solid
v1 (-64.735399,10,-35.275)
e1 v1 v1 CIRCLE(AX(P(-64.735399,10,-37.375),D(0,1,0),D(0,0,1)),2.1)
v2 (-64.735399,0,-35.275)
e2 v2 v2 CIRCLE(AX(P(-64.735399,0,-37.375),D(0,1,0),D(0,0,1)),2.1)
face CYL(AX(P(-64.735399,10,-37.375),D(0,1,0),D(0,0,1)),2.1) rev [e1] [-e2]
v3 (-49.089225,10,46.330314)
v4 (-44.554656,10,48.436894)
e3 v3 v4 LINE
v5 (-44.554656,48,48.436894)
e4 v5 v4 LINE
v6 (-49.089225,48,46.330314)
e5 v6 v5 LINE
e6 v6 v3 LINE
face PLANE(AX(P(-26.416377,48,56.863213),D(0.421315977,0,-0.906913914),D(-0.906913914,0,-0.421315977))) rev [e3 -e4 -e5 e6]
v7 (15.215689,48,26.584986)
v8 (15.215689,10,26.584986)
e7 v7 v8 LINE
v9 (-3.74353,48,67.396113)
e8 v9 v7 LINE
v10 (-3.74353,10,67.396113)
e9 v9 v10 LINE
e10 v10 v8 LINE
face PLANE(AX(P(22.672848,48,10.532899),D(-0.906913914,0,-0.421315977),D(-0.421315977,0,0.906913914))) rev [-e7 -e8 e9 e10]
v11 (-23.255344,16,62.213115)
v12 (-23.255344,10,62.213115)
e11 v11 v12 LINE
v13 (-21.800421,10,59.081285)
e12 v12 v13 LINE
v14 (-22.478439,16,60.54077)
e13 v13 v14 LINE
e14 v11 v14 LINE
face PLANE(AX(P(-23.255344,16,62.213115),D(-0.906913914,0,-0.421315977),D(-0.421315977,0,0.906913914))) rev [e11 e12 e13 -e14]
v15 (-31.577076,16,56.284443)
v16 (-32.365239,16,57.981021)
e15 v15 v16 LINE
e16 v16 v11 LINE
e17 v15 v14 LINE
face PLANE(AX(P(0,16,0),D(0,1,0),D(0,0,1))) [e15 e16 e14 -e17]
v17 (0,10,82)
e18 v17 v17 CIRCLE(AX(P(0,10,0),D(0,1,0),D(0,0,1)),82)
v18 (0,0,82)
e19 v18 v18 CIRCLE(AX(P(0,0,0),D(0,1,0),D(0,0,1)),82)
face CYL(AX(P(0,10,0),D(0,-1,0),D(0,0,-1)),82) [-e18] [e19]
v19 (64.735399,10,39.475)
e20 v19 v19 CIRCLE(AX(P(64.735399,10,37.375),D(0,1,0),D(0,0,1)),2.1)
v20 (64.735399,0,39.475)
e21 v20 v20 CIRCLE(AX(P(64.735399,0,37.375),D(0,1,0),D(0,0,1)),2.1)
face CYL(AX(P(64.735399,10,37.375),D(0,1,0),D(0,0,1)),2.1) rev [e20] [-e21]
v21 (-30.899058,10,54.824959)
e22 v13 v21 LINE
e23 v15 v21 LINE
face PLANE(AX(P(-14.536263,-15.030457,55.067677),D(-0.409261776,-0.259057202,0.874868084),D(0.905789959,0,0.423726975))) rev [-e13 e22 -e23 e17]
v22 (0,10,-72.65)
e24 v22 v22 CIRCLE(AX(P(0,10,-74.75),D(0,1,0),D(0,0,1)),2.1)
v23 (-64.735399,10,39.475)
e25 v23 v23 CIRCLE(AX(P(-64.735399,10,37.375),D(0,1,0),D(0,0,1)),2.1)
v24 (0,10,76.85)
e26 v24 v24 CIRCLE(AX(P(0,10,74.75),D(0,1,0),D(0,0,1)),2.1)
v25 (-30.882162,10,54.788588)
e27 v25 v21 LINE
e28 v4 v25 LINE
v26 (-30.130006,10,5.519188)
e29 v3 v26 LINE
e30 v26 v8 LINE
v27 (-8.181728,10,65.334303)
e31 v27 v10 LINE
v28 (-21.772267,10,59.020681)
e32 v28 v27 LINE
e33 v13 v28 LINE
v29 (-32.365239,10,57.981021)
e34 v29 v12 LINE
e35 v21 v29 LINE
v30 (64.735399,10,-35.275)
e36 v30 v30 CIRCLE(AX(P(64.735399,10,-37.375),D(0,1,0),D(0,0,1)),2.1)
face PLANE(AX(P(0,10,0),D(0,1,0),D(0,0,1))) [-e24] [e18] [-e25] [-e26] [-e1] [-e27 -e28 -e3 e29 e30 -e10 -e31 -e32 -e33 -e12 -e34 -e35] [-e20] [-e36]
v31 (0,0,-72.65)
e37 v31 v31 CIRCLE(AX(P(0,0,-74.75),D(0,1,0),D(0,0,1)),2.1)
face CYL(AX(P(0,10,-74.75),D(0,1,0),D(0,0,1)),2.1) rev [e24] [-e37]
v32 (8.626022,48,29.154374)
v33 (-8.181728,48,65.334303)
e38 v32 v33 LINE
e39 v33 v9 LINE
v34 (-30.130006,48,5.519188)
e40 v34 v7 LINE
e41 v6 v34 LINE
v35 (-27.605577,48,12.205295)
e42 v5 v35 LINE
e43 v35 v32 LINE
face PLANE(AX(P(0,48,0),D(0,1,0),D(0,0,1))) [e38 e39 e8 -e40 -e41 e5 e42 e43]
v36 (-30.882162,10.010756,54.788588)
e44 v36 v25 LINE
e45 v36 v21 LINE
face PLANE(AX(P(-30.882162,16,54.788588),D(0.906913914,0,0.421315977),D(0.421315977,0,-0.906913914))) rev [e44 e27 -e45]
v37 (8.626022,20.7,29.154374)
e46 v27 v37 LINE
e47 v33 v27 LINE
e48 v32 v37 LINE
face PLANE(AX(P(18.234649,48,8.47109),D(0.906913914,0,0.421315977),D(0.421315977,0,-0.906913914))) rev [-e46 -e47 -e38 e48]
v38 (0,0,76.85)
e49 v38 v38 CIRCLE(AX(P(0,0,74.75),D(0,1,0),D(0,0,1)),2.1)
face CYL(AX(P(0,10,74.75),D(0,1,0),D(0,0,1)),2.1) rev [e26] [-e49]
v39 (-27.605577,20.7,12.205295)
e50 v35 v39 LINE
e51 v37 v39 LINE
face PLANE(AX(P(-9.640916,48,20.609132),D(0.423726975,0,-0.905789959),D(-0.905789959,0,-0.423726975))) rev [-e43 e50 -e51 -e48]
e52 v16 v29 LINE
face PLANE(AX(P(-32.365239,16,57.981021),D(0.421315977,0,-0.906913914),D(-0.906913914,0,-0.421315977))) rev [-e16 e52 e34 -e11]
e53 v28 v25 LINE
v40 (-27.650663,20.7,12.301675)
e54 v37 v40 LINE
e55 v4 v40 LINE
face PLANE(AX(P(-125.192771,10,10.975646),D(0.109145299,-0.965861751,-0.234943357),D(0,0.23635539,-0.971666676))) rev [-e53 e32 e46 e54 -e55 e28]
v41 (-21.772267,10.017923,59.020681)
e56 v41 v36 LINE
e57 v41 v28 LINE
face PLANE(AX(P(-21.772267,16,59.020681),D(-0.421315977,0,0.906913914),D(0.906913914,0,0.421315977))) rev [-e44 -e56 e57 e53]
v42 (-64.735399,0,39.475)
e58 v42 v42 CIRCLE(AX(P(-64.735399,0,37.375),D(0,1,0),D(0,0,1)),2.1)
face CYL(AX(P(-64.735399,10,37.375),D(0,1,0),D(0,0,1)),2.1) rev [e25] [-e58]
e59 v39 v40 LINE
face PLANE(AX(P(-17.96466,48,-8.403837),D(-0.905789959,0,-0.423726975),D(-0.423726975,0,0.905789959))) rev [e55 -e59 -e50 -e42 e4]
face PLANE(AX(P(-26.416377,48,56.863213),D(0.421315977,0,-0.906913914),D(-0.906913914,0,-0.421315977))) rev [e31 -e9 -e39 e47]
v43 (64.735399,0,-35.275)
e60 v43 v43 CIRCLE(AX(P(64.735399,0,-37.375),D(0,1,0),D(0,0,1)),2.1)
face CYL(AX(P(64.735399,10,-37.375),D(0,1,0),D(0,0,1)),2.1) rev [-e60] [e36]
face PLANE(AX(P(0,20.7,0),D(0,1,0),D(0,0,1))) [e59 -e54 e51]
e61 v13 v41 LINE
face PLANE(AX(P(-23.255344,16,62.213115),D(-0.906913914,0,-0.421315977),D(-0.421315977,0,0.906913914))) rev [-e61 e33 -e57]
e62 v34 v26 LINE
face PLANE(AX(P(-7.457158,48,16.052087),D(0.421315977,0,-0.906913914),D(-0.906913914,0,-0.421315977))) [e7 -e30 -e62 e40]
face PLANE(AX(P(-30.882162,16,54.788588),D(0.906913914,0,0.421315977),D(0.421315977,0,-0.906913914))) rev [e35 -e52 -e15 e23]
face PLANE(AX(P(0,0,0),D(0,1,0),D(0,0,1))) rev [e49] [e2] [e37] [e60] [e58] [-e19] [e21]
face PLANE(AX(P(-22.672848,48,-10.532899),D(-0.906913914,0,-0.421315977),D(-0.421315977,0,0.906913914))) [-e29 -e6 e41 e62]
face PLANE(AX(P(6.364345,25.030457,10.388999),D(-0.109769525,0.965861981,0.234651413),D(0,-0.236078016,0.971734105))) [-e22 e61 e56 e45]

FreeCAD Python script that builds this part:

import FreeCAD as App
import Part
import Sketcher
Q = App.Units.Quantity


def add_polygon(sketch, points):
    """Adds a closed chain of lines whose ends are joined by coincident constraints."""
    first, n = sketch.GeometryCount, len(points)
    for a, b in zip(points, points[1:] + points[:1]):
        sketch.addGeometry(Part.LineSegment(App.Vector(*a, 0), App.Vector(*b, 0)), False)
    for i in range(n):
        sketch.addConstraint(Sketcher.Constraint("Coincident", first + i, 2, first + (i + 1) % n, 1))

doc = App.newDocument("Part")
body = doc.addObject("PartDesign::Body", "Body")

# Sketch on XZ plane
sketch1 = doc.addObject("Sketcher::SketchObject", "Sketch")
body.addObject(sketch1)
sketch1.AttachmentSupport = (doc.XZ_Plane, [""])
sketch1.MapMode = "FlatFace"
sketch1.addGeometry(Part.Circle(App.Vector(0, 0, 0), App.Vector(0, 0, 1), 82), False)
sketch1.addConstraint([
    Sketcher.Constraint("Coincident", 0, 3, -1, 1),
    Sketcher.Constraint("Diameter", 0, Q("164 mm")),
])
pad1 = doc.addObject("PartDesign::Pad", "Pad")
body.addObject(pad1)
pad1.Profile = sketch1
pad1.Length = 10
pad1.Reversed = True

# Sketch on XZ plane
sketch2 = doc.addObject("Sketcher::SketchObject", "Sketch001")
body.addObject(sketch2)
sketch2.AttachmentSupport = (doc.XZ_Plane, [""])
sketch2.MapMode = "FlatFace"
sketch2.AttachmentOffset = App.Placement(App.Vector(0, 0, -10), App.Rotation())
sketch2.addGeometry(Part.Circle(App.Vector(0, -74.8, 0), App.Vector(0, 0, 1), 2.1), False)
sketch2.addConstraint([
    Sketcher.Constraint("PointOnObject", 0, 3, -2),
    Sketcher.Constraint("Diameter", 0, Q("4.2 mm")),
    Sketcher.Constraint("DistanceY", 0, 3, -1, 1, Q("74.75 mm")),
])
doc.recompute()
hole = doc.addObject("PartDesign::Hole", "Hole")
body.addObject(hole)
hole.Profile = sketch2
hole.ThreadType = "None"
hole.Diameter = 4.2
hole.DepthType = "ThroughAll"
hole.Reversed = True
doc.recompute()

polarpattern = doc.addObject("PartDesign::PolarPattern", "PolarPattern")
body.addObject(polarpattern)
polarpattern.Originals = [hole]
polarpattern.Axis = (doc.Y_Axis, [""])
polarpattern.Angle = 360
polarpattern.Occurrences = 6
body.Tip = polarpattern

# Sketch on XZ plane
sketch3 = doc.addObject("Sketcher::SketchObject", "Sketch002")
body.addObject(sketch3)
sketch3.AttachmentSupport = (doc.XZ_Plane, [""])
sketch3.MapMode = "FlatFace"
sketch3.AttachmentOffset = App.Placement(App.Vector(0, 0, -10), App.Rotation())
add_polygon(sketch3, [(-28, 12), (-45, 48), (-8, 65), (9, 29)])  # lines 0-3
sketch3.addConstraint([
    Sketcher.Constraint("Perpendicular", 1, 2),
    Sketcher.Constraint("Perpendicular", 0, 3),
    Sketcher.Constraint("Equal", 0, 3),
    Sketcher.Constraint("Distance", 0, Q("40 mm")),
    Sketcher.Constraint("DistanceX", 3, 2, 2, 2, Q("36.231598 mm")),
    Sketcher.Constraint("DistanceX", -1, 1, 2, 2, Q("8.626022 mm")),
    Sketcher.Constraint("DistanceY", 0, 2, 1, 2, Q("16.897409 mm")),
    Sketcher.Constraint("DistanceY", -1, 1, 0, 2, Q("48.436894 mm")),
])
pad2 = doc.addObject("PartDesign::Pad", "Pad001")
body.addObject(pad2)
pad2.Profile = sketch3
pad2.Length = 10.7
pad2.Reversed = True

# Sketch on an angled plane
sketch4 = doc.addObject("Sketcher::SketchObject", "Sketch003")
body.addObject(sketch4)
sketch4.Placement = App.Placement(App.Vector(18.234649, 0, 8.47109), App.Rotation(App.Vector(0.421315977, 0, -0.906913914), App.Vector(0, 1, 0), App.Vector(0.906913914, 0, 0.421315977), "ZXY"))
add_polygon(sketch4, [(-63, 10), (-23, 21), (-63, 21)])  # lines 0-2
sketch4.addConstraint([
    Sketcher.Constraint("Horizontal", 1),
    Sketcher.Constraint("Vertical", 2),
    Sketcher.Constraint("DistanceY", 2, 2, 2, 1, Q("10.7 mm")),
    Sketcher.Constraint("DistanceY", -1, 1, 2, 2, Q("10 mm")),
    Sketcher.Constraint("DistanceX", 1, 2, 1, 1, Q("39.893454 mm")),
    Sketcher.Constraint("DistanceX", 1, 2, -1, 1, Q("62.699681 mm")),
])
pocket1 = doc.addObject("PartDesign::Pocket", "Pocket")
body.addObject(pocket1)
pocket1.Profile = sketch4
pocket1.Type = "ThroughAll"

# Sketch on XZ plane
sketch5 = doc.addObject("Sketcher::SketchObject", "Sketch004")
body.addObject(sketch5)
sketch5.AttachmentSupport = (doc.XZ_Plane, [""])
sketch5.MapMode = "FlatFace"
sketch5.AttachmentOffset = App.Placement(App.Vector(0, 0, -10), App.Rotation())
add_polygon(sketch5, [(-30.1, 5.5), (-49.1, 46.3), (-44.6, 48.4), (-27.6, 12.2), (8.6, 29.2), (-8.2, 65.3), (-3.7, 67.4), (15.2, 26.6)])  # lines 0-7
sketch5.addConstraint([
    Sketcher.Constraint("Perpendicular", 0, 1),
    Sketcher.Constraint("Perpendicular", 2, 3),
    Sketcher.Constraint("Perpendicular", 1, 4),
    Sketcher.Constraint("Perpendicular", 4, 5),
    Sketcher.Constraint("Perpendicular", 5, 6),
    Sketcher.Constraint("Perpendicular", 6, 7),
    Sketcher.Constraint("Equal", 2, 3),
    Sketcher.Constraint("Equal", 0, 6),
    Sketcher.Constraint("Distance", 0, Q("45 mm")),
    Sketcher.Constraint("Distance", 1, Q("5 mm")),
    Sketcher.Constraint("Distance", 2, Q("40 mm")),
    Sketcher.Constraint("Distance", 7, Q("50 mm")),
    Sketcher.Constraint("DistanceY", 2, 2, 1, 2, Q("36.231598 mm")),
    Sketcher.Constraint("DistanceX", 4, 2, 5, 2, Q("4.438198 mm")),
    Sketcher.Constraint("DistanceX", -1, 1, 3, 2, Q("8.626022 mm")),
    Sketcher.Constraint("DistanceY", -1, 1, 0, 2, Q("46.330314 mm")),
])
pad3 = doc.addObject("PartDesign::Pad", "Pad002")
body.addObject(pad3)
pad3.Profile = sketch5
pad3.Length = 38
pad3.Reversed = True

# Sketch on XZ plane
sketch6 = doc.addObject("Sketcher::SketchObject", "Sketch005")
body.addObject(sketch6)
sketch6.AttachmentSupport = (doc.XZ_Plane, [""])
sketch6.MapMode = "FlatFace"
sketch6.AttachmentOffset = App.Placement(App.Vector(0, 0, -10), App.Rotation())
add_polygon(sketch6, [(-32.4, 58), (-23.3, 62.2), (-21.8, 59), (-30.9, 54.8)])  # lines 0-3
sketch6.addConstraint([
    Sketcher.Constraint("Perpendicular", 0, 1),
    Sketcher.Constraint("Perpendicular", 1, 2),
    Sketcher.Constraint("Perpendicular", 2, 3),
    Sketcher.Constraint("Distance", 0, Q("10.044939 mm")),
    Sketcher.Constraint("DistanceY", -1, 1, 1, 2, Q("59.020681 mm")),
    Sketcher.Constraint("DistanceX", 2, 2, -1, 1, Q("30.882162 mm")),
    Sketcher.Constraint("DistanceY", -1, 1, 2, 2, Q("54.788588 mm")),
    Sketcher.Constraint("DistanceX", 3, 2, -1, 1, Q("32.365239 mm")),
])
pad4 = doc.addObject("PartDesign::Pad", "Pad003")
body.addObject(pad4)
pad4.Profile = sketch6
pad4.Length = 6
pad4.Reversed = True

# Sketch on an angled plane
sketch7 = doc.addObject("Sketcher::SketchObject", "Sketch006")
body.addObject(sketch7)
sketch7.Placement = App.Placement(App.Vector(-17.96466, 0, -8.403837), App.Rotation(App.Vector(0.423726975, 0, -0.905789959), App.Vector(0, 0.999999999, 0), App.Vector(0.905789959, 0, 0.423726975), "ZXY"))
add_polygon(sketch7, [(-64.826669, 17.732676), (-62.752661, 10), (-62.32998, 10.113369), (-62.27643, 18.416684)])  # lines 0-3
sketch7.addConstraint([
    Sketcher.Constraint("DistanceY", -1, 1, 0, 2, Q("10 mm")),
    Sketcher.Constraint("Distance", 1, Q("0.43762 mm")),
    Sketcher.Constraint("Distance", 2, Q("8.303488 mm")),
    Sketcher.Constraint("DistanceX", 0, 2, -1, 1, Q("62.752661 mm")),
    Sketcher.Constraint("DistanceX", 1, 2, -1, 1, Q("62.32998 mm")),
    Sketcher.Constraint("DistanceX", 2, 2, -1, 1, Q("62.27643 mm")),
    Sketcher.Constraint("DistanceX", 3, 2, -1, 1, Q("64.826669 mm")),
    Sketcher.Constraint("DistanceY", 3, 2, 2, 2, Q("0.684008 mm")),
])
pocket2 = doc.addObject("PartDesign::Pocket", "Pocket001")
body.addObject(pocket2)
pocket2.Profile = sketch7
pocket2.Length = 30
pocket2.Reversed = True

doc.recompute()
